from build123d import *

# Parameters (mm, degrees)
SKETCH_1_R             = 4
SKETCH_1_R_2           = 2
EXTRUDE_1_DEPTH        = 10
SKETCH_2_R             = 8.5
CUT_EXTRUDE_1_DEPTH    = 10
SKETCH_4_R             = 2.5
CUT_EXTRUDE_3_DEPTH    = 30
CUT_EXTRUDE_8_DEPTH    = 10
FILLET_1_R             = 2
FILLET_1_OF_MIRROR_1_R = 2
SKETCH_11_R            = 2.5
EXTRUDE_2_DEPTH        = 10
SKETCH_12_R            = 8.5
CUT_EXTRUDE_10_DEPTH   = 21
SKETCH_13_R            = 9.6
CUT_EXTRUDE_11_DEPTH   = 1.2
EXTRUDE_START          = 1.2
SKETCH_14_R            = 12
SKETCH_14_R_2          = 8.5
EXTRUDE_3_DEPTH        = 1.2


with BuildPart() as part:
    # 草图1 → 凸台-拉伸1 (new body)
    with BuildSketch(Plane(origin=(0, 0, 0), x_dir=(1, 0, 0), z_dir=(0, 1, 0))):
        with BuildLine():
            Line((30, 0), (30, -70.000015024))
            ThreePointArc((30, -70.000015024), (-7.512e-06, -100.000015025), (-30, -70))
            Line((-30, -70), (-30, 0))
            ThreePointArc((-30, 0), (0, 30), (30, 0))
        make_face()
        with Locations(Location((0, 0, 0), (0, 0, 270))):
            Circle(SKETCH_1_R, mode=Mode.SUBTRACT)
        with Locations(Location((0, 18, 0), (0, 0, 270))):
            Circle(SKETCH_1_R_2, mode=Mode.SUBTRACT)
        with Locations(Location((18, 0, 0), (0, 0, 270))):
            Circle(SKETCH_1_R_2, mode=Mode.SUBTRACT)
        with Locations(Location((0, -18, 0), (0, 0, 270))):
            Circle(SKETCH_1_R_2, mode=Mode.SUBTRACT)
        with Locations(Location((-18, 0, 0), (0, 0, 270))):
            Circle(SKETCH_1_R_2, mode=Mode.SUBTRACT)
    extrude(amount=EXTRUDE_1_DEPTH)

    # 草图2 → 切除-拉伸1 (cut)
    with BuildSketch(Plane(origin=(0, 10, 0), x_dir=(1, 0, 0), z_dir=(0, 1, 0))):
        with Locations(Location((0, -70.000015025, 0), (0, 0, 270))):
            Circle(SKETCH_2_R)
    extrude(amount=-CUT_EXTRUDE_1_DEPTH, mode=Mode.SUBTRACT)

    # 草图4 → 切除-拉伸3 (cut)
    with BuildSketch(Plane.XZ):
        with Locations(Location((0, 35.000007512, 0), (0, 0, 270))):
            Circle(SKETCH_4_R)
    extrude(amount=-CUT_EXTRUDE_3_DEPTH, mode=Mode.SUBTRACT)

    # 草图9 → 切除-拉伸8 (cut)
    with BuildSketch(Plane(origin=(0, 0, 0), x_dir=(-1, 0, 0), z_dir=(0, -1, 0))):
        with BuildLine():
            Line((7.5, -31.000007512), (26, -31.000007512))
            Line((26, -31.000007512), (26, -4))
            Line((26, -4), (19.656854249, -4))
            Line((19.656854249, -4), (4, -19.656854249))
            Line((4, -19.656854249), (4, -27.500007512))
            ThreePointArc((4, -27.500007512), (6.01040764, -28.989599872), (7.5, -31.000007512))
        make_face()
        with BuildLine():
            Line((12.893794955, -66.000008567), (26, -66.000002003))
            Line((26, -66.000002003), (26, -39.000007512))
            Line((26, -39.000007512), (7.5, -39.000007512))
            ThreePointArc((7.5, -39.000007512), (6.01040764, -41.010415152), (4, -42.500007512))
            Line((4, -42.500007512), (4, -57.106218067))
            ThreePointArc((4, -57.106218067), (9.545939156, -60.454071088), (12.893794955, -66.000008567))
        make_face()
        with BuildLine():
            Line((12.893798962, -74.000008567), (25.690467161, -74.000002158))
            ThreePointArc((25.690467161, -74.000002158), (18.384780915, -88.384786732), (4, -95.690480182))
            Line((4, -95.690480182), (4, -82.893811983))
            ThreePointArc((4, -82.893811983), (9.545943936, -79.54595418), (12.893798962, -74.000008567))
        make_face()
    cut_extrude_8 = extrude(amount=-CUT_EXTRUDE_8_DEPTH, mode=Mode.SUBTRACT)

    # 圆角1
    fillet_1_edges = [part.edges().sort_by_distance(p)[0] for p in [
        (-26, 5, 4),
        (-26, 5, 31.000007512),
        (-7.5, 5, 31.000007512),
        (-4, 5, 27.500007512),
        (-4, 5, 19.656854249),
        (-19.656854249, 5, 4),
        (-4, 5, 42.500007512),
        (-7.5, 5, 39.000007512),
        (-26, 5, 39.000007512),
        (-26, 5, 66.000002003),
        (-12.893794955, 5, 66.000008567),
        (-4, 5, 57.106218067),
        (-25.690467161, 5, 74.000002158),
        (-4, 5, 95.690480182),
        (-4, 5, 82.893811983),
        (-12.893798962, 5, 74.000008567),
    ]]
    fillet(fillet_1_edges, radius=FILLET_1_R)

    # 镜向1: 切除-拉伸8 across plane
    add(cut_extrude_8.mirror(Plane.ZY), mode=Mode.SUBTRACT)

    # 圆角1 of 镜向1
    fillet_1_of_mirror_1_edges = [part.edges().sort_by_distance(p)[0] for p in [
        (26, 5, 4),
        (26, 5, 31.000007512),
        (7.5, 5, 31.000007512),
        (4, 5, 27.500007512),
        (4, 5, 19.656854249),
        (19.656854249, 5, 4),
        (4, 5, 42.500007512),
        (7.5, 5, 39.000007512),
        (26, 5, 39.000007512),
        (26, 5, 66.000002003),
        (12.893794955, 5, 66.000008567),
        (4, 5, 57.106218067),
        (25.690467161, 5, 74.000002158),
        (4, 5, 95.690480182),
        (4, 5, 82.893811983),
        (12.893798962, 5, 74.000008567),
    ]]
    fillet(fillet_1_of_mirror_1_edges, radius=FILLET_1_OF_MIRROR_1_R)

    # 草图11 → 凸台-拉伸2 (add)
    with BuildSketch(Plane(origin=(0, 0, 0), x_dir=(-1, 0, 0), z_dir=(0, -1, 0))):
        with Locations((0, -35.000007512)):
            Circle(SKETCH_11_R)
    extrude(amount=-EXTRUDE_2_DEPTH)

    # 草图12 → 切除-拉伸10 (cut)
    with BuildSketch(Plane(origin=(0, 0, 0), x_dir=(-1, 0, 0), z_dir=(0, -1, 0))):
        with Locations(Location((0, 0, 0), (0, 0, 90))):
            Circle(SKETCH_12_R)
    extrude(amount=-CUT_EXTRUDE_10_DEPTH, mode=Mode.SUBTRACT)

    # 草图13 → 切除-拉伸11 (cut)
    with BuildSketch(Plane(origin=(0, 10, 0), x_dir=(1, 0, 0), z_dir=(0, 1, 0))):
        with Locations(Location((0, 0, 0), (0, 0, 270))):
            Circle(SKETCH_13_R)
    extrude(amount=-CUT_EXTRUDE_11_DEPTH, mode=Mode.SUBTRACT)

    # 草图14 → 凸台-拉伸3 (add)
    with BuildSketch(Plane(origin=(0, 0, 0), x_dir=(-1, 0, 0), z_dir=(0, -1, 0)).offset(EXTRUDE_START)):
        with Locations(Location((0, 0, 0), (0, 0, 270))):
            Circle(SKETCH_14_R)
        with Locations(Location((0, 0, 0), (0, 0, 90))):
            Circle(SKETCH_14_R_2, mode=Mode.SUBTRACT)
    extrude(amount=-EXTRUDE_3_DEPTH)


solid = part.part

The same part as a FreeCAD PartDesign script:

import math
import FreeCAD as App
import Part
import Sketcher

V = App.Vector
Q = App.Units.Quantity


def edges_at(feature, points):
    """Names of the edges that pass closest to the given points."""
    edges = feature.Shape.Edges
    near = lambda p: min(range(len(edges)), key=lambda i: edges[i].distToShape(Part.Vertex(*p))[0])
    return sorted({f"Edge{near(p) + 1}" for p in points})

doc = App.newDocument("Part")
body = doc.addObject("PartDesign::Body", "Body")

sketch1 = body.newObject("Sketcher::SketchObject", "Sketch")
sketch1.AttachmentSupport = (doc.getObject("XZ_Plane"), [""])
sketch1.MapMode = "FlatFace"
sketch1.addGeometry(Part.LineSegment(V(30, 70, 0), V(30, 0, 0)), False)
sketch1.addGeometry(Part.ArcOfCircle(Part.Circle(V(0, 0, 0), V(0, 0, 1), 30), math.radians(180), math.radians(360)), False)
sketch1.addGeometry(Part.LineSegment(V(-30, 0, 0), V(-30, 70, 0)), False)
sketch1.addGeometry(Part.ArcOfCircle(Part.Circle(V(0, 70, 0), V(0, 0, 1), 30), math.radians(0), math.radians(180)), False)
sketch1.addGeometry(Part.Circle(V(0, 18, 0), V(0, 0, 1), 2), False)
sketch1.addGeometry(Part.Circle(V(18, 0, 0), V(0, 0, 1), 2), False)
sketch1.addGeometry(Part.Circle(V(0, 0, 0), V(0, 0, 1), 4), False)
sketch1.addGeometry(Part.Circle(V(-18, 0, 0), V(0, 0, 1), 2), False)
sketch1.addGeometry(Part.Circle(V(0, -18, 0), V(0, 0, 1), 2), False)
sketch1.addConstraint(Sketcher.Constraint("Tangent", 0, 2, 1, 2))
sketch1.addConstraint(Sketcher.Constraint("Tangent", 1, 1, 2, 1))
sketch1.addConstraint(Sketcher.Constraint("Tangent", 2, 2, 3, 2))
sketch1.addConstraint(Sketcher.Constraint("Tangent", 3, 1, 0, 1))
sketch1.addConstraint(Sketcher.Constraint("Vertical", 0))
sketch1.addConstraint(Sketcher.Constraint("Vertical", 2))
sketch1.addConstraint(Sketcher.Constraint("Coincident", 1, 3, -1, 1))
sketch1.addConstraint(Sketcher.Constraint("Coincident", 6, 3, -1, 1))
sketch1.addConstraint(Sketcher.Constraint("Equal", 4, 5))
sketch1.addConstraint(Sketcher.Constraint("Equal", 5, 7))
sketch1.addConstraint(Sketcher.Constraint("Equal", 7, 8))
sketch1.addConstraint(Sketcher.Constraint("Symmetric", 5, 3, 7, 3, -1, 1))
sketch1.addConstraint(Sketcher.Constraint("Symmetric", 4, 3, 8, 3, -1, 1))
sketch1.addConstraint(Sketcher.Constraint("PointOnObject", 4, 3, -2))
sketch1.addConstraint(Sketcher.Constraint("PointOnObject", 5, 3, -1))
sketch1.addConstraint(Sketcher.Constraint("Diameter", 4, 4.0))
sketch1.addConstraint(Sketcher.Constraint("Diameter", 6, 8.0))
sketch1.addConstraint(Sketcher.Constraint("Radius", 1, 30.0))
sketch1.addConstraint(Sketcher.Constraint("DistanceY", 2, 1, 2, 2, 70.0))
sketch1.addConstraint(Sketcher.Constraint("DistanceY", -1, 1, 4, 3, 18.0))
sketch1.addConstraint(Sketcher.Constraint("DistanceX", -1, 1, 5, 3, 18.0))
pad1 = body.newObject("PartDesign::Pad", "Pad")
pad1.Profile = sketch1
pad1.Length = 10
pad1.Reversed = True

sketch2 = body.newObject("Sketcher::SketchObject", "Sketch001")
sketch2.AttachmentSupport = (doc.getObject("XZ_Plane"), [""])
sketch2.MapMode = "FlatFace"
sketch2.AttachmentOffset = App.Placement(V(0, 0, -10), App.Rotation())
sketch2.addGeometry(Part.Circle(V(0, 70, 0), V(0, 0, 1), 8), False)
sketch2.addConstraint(Sketcher.Constraint("PointOnObject", 0, 3, -2))
sketch2.addConstraint(Sketcher.Constraint("Diameter", 0, 17.0))
sketch2.addConstraint(Sketcher.Constraint("DistanceY", -1, 1, 0, 3, 70.000015))
pocket1 = body.newObject("PartDesign::Pocket", "Pocket")
pocket1.Profile = sketch2
pocket1.Length = 10
pocket1.Reversed = True

sketch3 = body.newObject("Sketcher::SketchObject", "Sketch002")
sketch3.AttachmentSupport = (doc.getObject("XZ_Plane"), [""])
sketch3.MapMode = "FlatFace"
sketch3.addGeometry(Part.Circle(V(0, 35, 0), V(0, 0, 1), 2.5), False)
sketch3.addConstraint(Sketcher.Constraint("PointOnObject", 0, 3, -2))
sketch3.addConstraint(Sketcher.Constraint("Diameter", 0, 5.0))
sketch3.addConstraint(Sketcher.Constraint("DistanceY", -1, 1, 0, 3, 35.000008))
pocket2 = body.newObject("PartDesign::Pocket", "Pocket001")
pocket2.Profile = sketch3
pocket2.Length = 30

sketch4 = body.newObject("Sketcher::SketchObject", "Sketch003")
sketch4.AttachmentSupport = (doc.getObject("XZ_Plane"), [""])
sketch4.MapMode = "FlatFace"
sketch4.addGeometry(Part.LineSegment(V(-7.5, 31, 0), V(-26, 31, 0)), False)
sketch4.addGeometry(Part.LineSegment(V(-26, 31, 0), V(-26, 4, 0)), False)
sketch4.addGeometry(Part.LineSegment(V(-26, 4, 0), V(-19.7, 4, 0)), False)
sketch4.addGeometry(Part.LineSegment(V(-19.7, 4, 0), V(-4, 19.7, 0)), False)
sketch4.addGeometry(Part.LineSegment(V(-4, 19.7, 0), V(-4, 27.5, 0)), False)
sketch4.addGeometry(Part.ArcOfCircle(Part.Circle(V(0, 35, 0), V(0, 0, 1), 8.5), math.radians(-152), math.radians(-118)), False)
sketch4.addGeometry(Part.LineSegment(V(-12.9, 66, 0), V(-26, 66, 0)), False)
sketch4.addGeometry(Part.LineSegment(V(-26, 66, 0), V(-26, 39, 0)), False)
sketch4.addGeometry(Part.LineSegment(V(-26, 39, 0), V(-7.5, 39, 0)), False)
sketch4.addGeometry(Part.ArcOfCircle(Part.Circle(V(0, 35, 0), V(0, 0, 1), 8.5), math.radians(118), math.radians(152)), False)
sketch4.addGeometry(Part.LineSegment(V(-4, 42.5, 0), V(-4, 57.1, 0)), False)
sketch4.addGeometry(Part.ArcOfCircle(Part.Circle(V(0, 70, 0), V(0, 0, 1), 13.5), math.radians(-163), math.radians(-107)), False)
sketch4.addGeometry(Part.LineSegment(V(-25.7, 74, 0), V(-12.9, 74, 0)), False)
sketch4.addGeometry(Part.ArcOfCircle(Part.Circle(V(0, 70, 0), V(0, 0, 1), 13.5), math.radians(107), math.radians(163)), False)
sketch4.addGeometry(Part.LineSegment(V(-4, 82.9, 0), V(-4, 95.7, 0)), False)
sketch4.addGeometry(Part.ArcOfCircle(Part.Circle(V(0, 70, 0), V(0, 0, 1), 26), math.radians(99), math.radians(171)), False)
sketch4.addConstraint(Sketcher.Constraint("Coincident", 0, 2, 1, 1))
sketch4.addConstraint(Sketcher.Constraint("Coincident", 1, 2, 2, 1))
sketch4.addConstraint(Sketcher.Constraint("Coincident", 2, 2, 3, 1))
sketch4.addConstraint(Sketcher.Constraint("Coincident", 3, 2, 4, 1))
sketch4.addConstraint(Sketcher.Constraint("Coincident", 4, 2, 5, 2))
sketch4.addConstraint(Sketcher.Constraint("Coincident", 5, 1, 0, 1))
sketch4.addConstraint(Sketcher.Constraint("Coincident", 6, 2, 7, 1))
sketch4.addConstraint(Sketcher.Constraint("Coincident", 7, 2, 8, 1))
sketch4.addConstraint(Sketcher.Constraint("Coincident", 8, 2, 9, 2))
sketch4.addConstraint(Sketcher.Constraint("Coincident", 9, 1, 10, 1))
sketch4.addConstraint(Sketcher.Constraint("Coincident", 10, 2, 11, 2))
sketch4.addConstraint(Sketcher.Constraint("Coincident", 11, 1, 6, 1))
sketch4.addConstraint(Sketcher.Constraint("Coincident", 12, 2, 13, 2))
sketch4.addConstraint(Sketcher.Constraint("Coincident", 13, 1, 14, 1))
sketch4.addConstraint(Sketcher.Constraint("Coincident", 14, 2, 15, 1))
sketch4.addConstraint(Sketcher.Constraint("Coincident", 15, 2, 12, 1))
sketch4.addConstraint(Sketcher.Constraint("Horizontal", 0))
sketch4.addConstraint(Sketcher.Constraint("Vertical", 1))
sketch4.addConstraint(Sketcher.Constraint("Horizontal", 2))
sketch4.addConstraint(Sketcher.Constraint("Vertical", 4))
sketch4.addConstraint(Sketcher.Constraint("Vertical", 7))
sketch4.addConstraint(Sketcher.Constraint("Horizontal", 8))
sketch4.addConstraint(Sketcher.Constraint("Vertical", 10))
sketch4.addConstraint(Sketcher.Constraint("Vertical", 14))
sketch4.addConstraint(Sketcher.Constraint("Coincident", 9, 3, 5, 3))
sketch4.addConstraint(Sketcher.Constraint("Coincident", 13, 3, 11, 3))
sketch4.addConstraint(Sketcher.Constraint("Coincident", 15, 3, 11, 3))
sketch4.addConstraint(Sketcher.Constraint("Equal", 5, 9))
sketch4.addConstraint(Sketcher.Constraint("Equal", 11, 13))
sketch4.addConstraint(Sketcher.Constraint("PointOnObject", 5, 3, -2))
sketch4.addConstraint(Sketcher.Constraint("PointOnObject", 11, 3, -2))
sketch4.addConstraint(Sketcher.Constraint("Parallel", 6, 12))
sketch4.addConstraint(Sketcher.Constraint("Vertical", 1, 2, 6, 2))
sketch4.addConstraint(Sketcher.Constraint("Vertical", 5, 1, 8, 2))
sketch4.addConstraint(Sketcher.Constraint("Vertical", 4, 2, 9, 1))
sketch4.addConstraint(Sketcher.Constraint("Vertical", 10, 2, 13, 1))
sketch4.addConstraint(Sketcher.Constraint("Radius", 15, 26.0))
sketch4.addConstraint(Sketcher.Constraint("Radius", 5, 8.5))
sketch4.addConstraint(Sketcher.Constraint("Radius", 11, 13.5))
sketch4.addConstraint(Sketcher.Constraint("Angle", 3, Q("45 deg")))
sketch4.addConstraint(Sketcher.Constraint("DistanceX", 0, 2, 0, 1, 18.5))
sketch4.addConstraint(Sketcher.Constraint("DistanceX", 0, 2, -1, 1, 26.0))
sketch4.addConstraint(Sketcher.Constraint("DistanceY", -1, 1, 1, 2, 4.0))
sketch4.addConstraint(Sketcher.Constraint("DistanceX", 3, 2, -1, 1, 4.0))
sketch4.addConstraint(Sketcher.Constraint("DistanceY", 11, 1, 12, 2, 8.0))
sketch4.addConstraint(Sketcher.Constraint("DistanceY", 10, 1, 10, 2, 14.606211))
sketch4.addConstraint(Sketcher.Constraint("DistanceX", 12, 2, -1, 1, 12.893799))
sketch4.addConstraint(Sketcher.Constraint("Distance", 12, 12.796668))
sketch4.addConstraint(Sketcher.Constraint("DistanceX", 2, 1, 2, 2, 6.343146))
sketch4.addConstraint(Sketcher.Constraint("DistanceY", 1, 2, 1, 1, 27.000008))
pocket3 = body.newObject("PartDesign::Pocket", "Pocket002")
pocket3.Profile = sketch4
pocket3.Length = 10
doc.recompute()

fillet = body.newObject("PartDesign::Fillet", "Fillet")
fillet.Base = (pocket3, edges_at(pocket3, [
    (-26, 5, 4),
    (-26, 5, 31),
    (-7.5, 5, 31),
    (-4, 5, 27.5),
    (-4, 5, 19.657),
    (-19.657, 5, 4),
    (-4, 5, 42.5),
    (-7.5, 5, 39),
    (-26, 5, 39),
    (-26, 5, 66),
    (-12.894, 5, 66),
    (-4, 5, 57.106),
    (-25.69, 5, 74),
    (-4, 5, 95.69),
    (-4, 5, 82.894),
    (-12.894, 5, 74),
]))
fillet.Radius = 2
doc.recompute()

mirrored = body.newObject("PartDesign::Mirrored", "Mirrored")
mirrored.Originals = [pocket3]
mirrored.MirrorPlane = (doc.getObject("YZ_Plane"), [""])
body.Tip = mirrored
doc.recompute()

fillet2 = body.newObject("PartDesign::Fillet", "Fillet001")
fillet2.Base = (mirrored, edges_at(mirrored, [
    (26, 5, 4),
    (26, 5, 31),
    (7.5, 5, 31),
    (4, 5, 27.5),
    (4, 5, 19.657),
    (19.657, 5, 4),
    (4, 5, 42.5),
    (7.5, 5, 39),
    (26, 5, 39),
    (26, 5, 66),
    (12.894, 5, 66),
    (4, 5, 57.106),
    (25.69, 5, 74),
    (4, 5, 95.69),
    (4, 5, 82.894),
    (12.894, 5, 74),
]))
fillet2.Radius = 2

sketch5 = body.newObject("Sketcher::SketchObject", "Sketch004")
sketch5.AttachmentSupport = (doc.getObject("XZ_Plane"), [""])
sketch5.MapMode = "FlatFace"
sketch5.addGeometry(Part.Circle(V(0, 35, 0), V(0, 0, 1), 2.5), False)
sketch5.addConstraint(Sketcher.Constraint("PointOnObject", 0, 3, -2))
sketch5.addConstraint(Sketcher.Constraint("Diameter", 0, 5.0))
sketch5.addConstraint(Sketcher.Constraint("DistanceY", -1, 1, 0, 3, 35.000008))
pad2 = body.newObject("PartDesign::Pad", "Pad001")
pad2.Profile = sketch5
pad2.Length = 10
pad2.Reversed = True

sketch6 = body.newObject("Sketcher::SketchObject", "Sketch005")
sketch6.AttachmentSupport = (doc.getObject("XZ_Plane"), [""])
sketch6.MapMode = "FlatFace"
sketch6.addGeometry(Part.Circle(V(0, 0, 0), V(0, 0, 1), 8), False)
sketch6.addConstraint(Sketcher.Constraint("Coincident", 0, 3, -1, 1))
sketch6.addConstraint(Sketcher.Constraint("Diameter", 0, 17.0))
pocket4 = body.newObject("PartDesign::Pocket", "Pocket003")
pocket4.Profile = sketch6
pocket4.Length = 21

sketch7 = body.newObject("Sketcher::SketchObject", "Sketch006")
sketch7.AttachmentSupport = (doc.getObject("XZ_Plane"), [""])
sketch7.MapMode = "FlatFace"
sketch7.AttachmentOffset = App.Placement(V(0, 0, -10), App.Rotation())
sketch7.addGeometry(Part.Circle(V(0, 0, 0), V(0, 0, 1), 10), False)
sketch7.addConstraint(Sketcher.Constraint("Coincident", 0, 3, -1, 1))
sketch7.addConstraint(Sketcher.Constraint("Diameter", 0, 19.2))
pocket5 = body.newObject("PartDesign::Pocket", "Pocket004")
pocket5.Profile = sketch7
pocket5.Length = 1.2
pocket5.Reversed = True

sketch8 = body.newObject("Sketcher::SketchObject", "Sketch007")
sketch8.AttachmentSupport = (doc.getObject("XZ_Plane"), [""])
sketch8.MapMode = "FlatFace"
sketch8.AttachmentOffset = App.Placement(V(0, 0, 1.2), App.Rotation())
sketch8.addGeometry(Part.Circle(V(0, 0, 0), V(0, 0, 1), 12), False)
sketch8.addGeometry(Part.Circle(V(0, 0, 0), V(0, 0, 1), 8), False)
sketch8.addConstraint(Sketcher.Constraint("Coincident", 0, 3, -1, 1))
sketch8.addConstraint(Sketcher.Constraint("Coincident", 1, 3, -1, 1))
sketch8.addConstraint(Sketcher.Constraint("Diameter", 0, 24.0))
sketch8.addConstraint(Sketcher.Constraint("Diameter", 1, 17.0))
pad3 = body.newObject("PartDesign::Pad", "Pad002")
pad3.Profile = sketch8
pad3.Length = 1.2
pad3.Reversed = True

doc.recompute()
